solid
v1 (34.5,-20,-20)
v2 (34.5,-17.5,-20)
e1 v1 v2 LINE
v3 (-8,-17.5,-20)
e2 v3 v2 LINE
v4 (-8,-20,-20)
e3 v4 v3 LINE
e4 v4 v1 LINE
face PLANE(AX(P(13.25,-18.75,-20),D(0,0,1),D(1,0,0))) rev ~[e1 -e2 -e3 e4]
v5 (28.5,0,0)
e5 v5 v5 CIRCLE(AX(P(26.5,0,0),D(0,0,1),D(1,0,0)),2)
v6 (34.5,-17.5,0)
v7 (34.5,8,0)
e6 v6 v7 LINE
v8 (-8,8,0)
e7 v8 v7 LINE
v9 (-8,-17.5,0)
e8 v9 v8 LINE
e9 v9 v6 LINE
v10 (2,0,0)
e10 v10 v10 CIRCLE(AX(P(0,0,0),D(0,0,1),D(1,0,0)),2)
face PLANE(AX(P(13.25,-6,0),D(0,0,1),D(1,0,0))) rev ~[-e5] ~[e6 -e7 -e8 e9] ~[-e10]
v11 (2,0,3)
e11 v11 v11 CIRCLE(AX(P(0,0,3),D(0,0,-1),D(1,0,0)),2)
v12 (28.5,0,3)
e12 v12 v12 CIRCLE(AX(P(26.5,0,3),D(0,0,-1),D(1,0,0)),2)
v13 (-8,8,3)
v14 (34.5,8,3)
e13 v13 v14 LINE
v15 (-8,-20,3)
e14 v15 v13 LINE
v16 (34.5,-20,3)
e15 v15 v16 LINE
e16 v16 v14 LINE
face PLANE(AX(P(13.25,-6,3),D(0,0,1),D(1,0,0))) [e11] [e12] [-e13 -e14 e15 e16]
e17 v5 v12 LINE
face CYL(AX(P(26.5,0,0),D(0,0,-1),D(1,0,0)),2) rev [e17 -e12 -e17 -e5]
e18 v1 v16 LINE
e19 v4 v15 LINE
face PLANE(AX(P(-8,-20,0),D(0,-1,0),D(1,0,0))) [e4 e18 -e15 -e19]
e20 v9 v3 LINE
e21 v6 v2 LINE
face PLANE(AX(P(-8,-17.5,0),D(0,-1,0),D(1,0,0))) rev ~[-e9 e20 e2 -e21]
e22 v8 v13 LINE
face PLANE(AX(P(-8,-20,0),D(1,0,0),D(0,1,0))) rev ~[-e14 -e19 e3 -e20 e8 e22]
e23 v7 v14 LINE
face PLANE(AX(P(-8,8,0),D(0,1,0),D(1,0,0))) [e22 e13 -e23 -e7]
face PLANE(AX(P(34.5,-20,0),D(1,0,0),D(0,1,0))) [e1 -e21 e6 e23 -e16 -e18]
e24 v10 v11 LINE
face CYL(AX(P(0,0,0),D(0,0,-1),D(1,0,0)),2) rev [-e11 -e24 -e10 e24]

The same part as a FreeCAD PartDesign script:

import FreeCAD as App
import Part
import Sketcher
from FreeCAD import Vector


def add_polygon(sketch, points):
    """Adds a closed chain of lines whose ends are joined by coincident constraints."""
    first, n = sketch.GeometryCount, len(points)
    for a, b in zip(points, points[1:] + points[:1]):
        sketch.addGeometry(Part.LineSegment(App.Vector(*a, 0), App.Vector(*b, 0)), False)
    for i in range(n):
        sketch.addConstraint(Sketcher.Constraint("Coincident", first + i, 2, first + (i + 1) % n, 1))

doc = App.newDocument("Part")
body = doc.addObject("PartDesign::Body", "Body")

sketch1 = body.newObject("Sketcher::SketchObject", "Sketch")
sketch1.AttachmentSupport = (doc.getObject("XY_Plane"), [""])
sketch1.MapMode = "FlatFace"
add_polygon(sketch1, [(-8, 8), (-8, -20), (34, -20), (34, 8)])
sketch1.addConstraint(Sketcher.Constraint("Vertical", 0))
sketch1.addConstraint(Sketcher.Constraint("Horizontal", 1))
sketch1.addConstraint(Sketcher.Constraint("Vertical", 2))
sketch1.addConstraint(Sketcher.Constraint("Horizontal", 3))
sketch1.addConstraint(Sketcher.Constraint("DistanceY", 0, 2, 0, 1, 28.0))
sketch1.addConstraint(Sketcher.Constraint("DistanceX", 1, 1, 1, 2, 42.5))
sketch1.addConstraint(Sketcher.Constraint("DistanceX", 0, 2, -1, 1, 8.0))
sketch1.addConstraint(Sketcher.Constraint("DistanceY", 0, 2, -1, 1, 20.0))
pad1 = body.newObject("PartDesign::Pad", "Pad")
pad1.Profile = sketch1
pad1.Length = 3

sketch2 = body.newObject("Sketcher::SketchObject", "Sketch001")
sketch2.AttachmentSupport = (doc.getObject("XY_Plane"), [""])
sketch2.MapMode = "FlatFace"
sketch2.addGeometry(Part.Circle(Vector(0, 0, 0), Vector(0, 0, 1), 2), False)
sketch2.addConstraint(Sketcher.Constraint("Coincident", 0, 3, -1, 1))
sketch2.addConstraint(Sketcher.Constraint("Diameter", 0, 4.0))
pocket1 = body.newObject("PartDesign::Pocket", "Pocket")
pocket1.Profile = sketch2
pocket1.Length = 5
pocket1.Reversed = True

sketch3 = body.newObject("Sketcher::SketchObject", "Sketch002")
sketch3.AttachmentSupport = (doc.getObject("XY_Plane"), [""])
sketch3.MapMode = "FlatFace"
sketch3.addGeometry(Part.Circle(Vector(26.5, 0, 0), Vector(0, 0, 1), 2), False)
sketch3.addConstraint(Sketcher.Constraint("PointOnObject", 0, 3, -1))
sketch3.addConstraint(Sketcher.Constraint("Diameter", 0, 4.0))
sketch3.addConstraint(Sketcher.Constraint("DistanceX", -1, 1, 0, 3, 26.5))
pocket2 = body.newObject("PartDesign::Pocket", "Pocket001")
pocket2.Profile = sketch3
pocket2.Length = 5
pocket2.Reversed = True

sketch4 = body.newObject("Sketcher::SketchObject", "Sketch003")
sketch4.AttachmentSupport = (doc.getObject("XY_Plane"), [""])
sketch4.MapMode = "FlatFace"
add_polygon(sketch4, [(-8, -17.5), (-8, -20), (34.5, -20), (34.5, -17.5)])
sketch4.addConstraint(Sketcher.Constraint("Vertical", 0))
sketch4.addConstraint(Sketcher.Constraint("Horizontal", 1))
sketch4.addConstraint(Sketcher.Constraint("Vertical", 2))
sketch4.addConstraint(Sketcher.Constraint("Horizontal", 3))
sketch4.addConstraint(Sketcher.Constraint("DistanceX", 1, 1, 1, 2, 42.5))
sketch4.addConstraint(Sketcher.Constraint("DistanceY", 0, 2, 0, 1, 2.5))
sketch4.addConstraint(Sketcher.Constraint("DistanceX", 0, 2, -1, 1, 8.0))
sketch4.addConstraint(Sketcher.Constraint("DistanceY", 0, 2, -1, 1, 20.0))
pad2 = body.newObject("PartDesign::Pad", "Pad001")
pad2.Profile = sketch4
pad2.Length = 20
pad2.Reversed = True

doc.recompute()
